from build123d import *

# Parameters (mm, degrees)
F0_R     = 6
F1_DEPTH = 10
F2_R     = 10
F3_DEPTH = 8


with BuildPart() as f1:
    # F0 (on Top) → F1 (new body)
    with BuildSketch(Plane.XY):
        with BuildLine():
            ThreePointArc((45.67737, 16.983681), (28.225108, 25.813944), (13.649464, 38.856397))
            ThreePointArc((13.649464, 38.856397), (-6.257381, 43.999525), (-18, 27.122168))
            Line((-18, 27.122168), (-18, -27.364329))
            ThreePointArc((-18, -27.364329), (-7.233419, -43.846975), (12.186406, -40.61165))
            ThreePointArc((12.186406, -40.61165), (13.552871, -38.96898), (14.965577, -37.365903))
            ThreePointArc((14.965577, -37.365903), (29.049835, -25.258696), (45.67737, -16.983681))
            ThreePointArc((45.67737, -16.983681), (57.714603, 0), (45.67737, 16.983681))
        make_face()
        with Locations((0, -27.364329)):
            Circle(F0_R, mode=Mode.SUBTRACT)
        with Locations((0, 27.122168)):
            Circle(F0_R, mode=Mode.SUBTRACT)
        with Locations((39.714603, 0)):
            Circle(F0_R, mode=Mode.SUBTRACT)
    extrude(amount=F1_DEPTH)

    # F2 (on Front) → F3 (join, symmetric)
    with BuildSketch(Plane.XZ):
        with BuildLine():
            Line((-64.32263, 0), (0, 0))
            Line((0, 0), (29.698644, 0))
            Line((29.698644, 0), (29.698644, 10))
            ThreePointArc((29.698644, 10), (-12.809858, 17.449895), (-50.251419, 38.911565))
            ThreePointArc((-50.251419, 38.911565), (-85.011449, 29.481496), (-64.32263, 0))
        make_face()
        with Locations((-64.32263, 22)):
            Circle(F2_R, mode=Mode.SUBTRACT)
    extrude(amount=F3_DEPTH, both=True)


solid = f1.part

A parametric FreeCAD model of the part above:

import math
import FreeCAD as App
import Part
import Sketcher

doc = App.newDocument("Part")
body = doc.addObject("PartDesign::Body", "Body")

# Sketch on XY plane
sketch1 = doc.addObject("Sketcher::SketchObject", "Sketch")
body.addObject(sketch1)
sketch1.AttachmentSupport = (doc.XY_Plane, [""])
sketch1.MapMode = "FlatFace"
sketch1.addGeometry(Part.ArcOfCircle(Part.Circle(App.Vector(70.522234, 87.749021, 0), App.Vector(0, 0, 1), 75.000004), math.radians(-139.31487), math.radians(-109.345563)), False)
sketch1.addGeometry(Part.ArcOfCircle(Part.Circle(App.Vector(0, 27.122168, 0), App.Vector(0, 0, 1), 18), math.radians(40.68513), math.radians(180)), False)
sketch1.addGeometry(Part.LineSegment(App.Vector(-18, 27.122168, 0), App.Vector(-18, -27.364329, 0)), False)
sketch1.addGeometry(Part.ArcOfCircle(Part.Circle(App.Vector(0.000001, -27.364328, 0), App.Vector(0, 0, 1), 18.000001), math.radians(-179.999996), math.radians(-47.388594)), False)
sketch1.addGeometry(Part.ArcOfCircle(Part.Circle(App.Vector(70.5213, -87.748199, 0), App.Vector(0, 0, 1), 74.99876), math.radians(137.795788), math.radians(141.060627)), False)
sketch1.addGeometry(Part.ArcOfCircle(Part.Circle(App.Vector(70.522241, -87.749034, 0), App.Vector(0, 0, 1), 75.000019), math.radians(109.345566), math.radians(137.795798)), False)
sketch1.addGeometry(Part.ArcOfCircle(Part.Circle(App.Vector(39.714603, 0, 0), App.Vector(0, 0, 1), 18), math.radians(-70.654435), math.radians(70.654435)), False)
sketch1.addGeometry(Part.Circle(App.Vector(0, -27.364329, 0), App.Vector(0, 0, 1), 6), False)
sketch1.addGeometry(Part.Circle(App.Vector(0, 27.122168, 0), App.Vector(0, 0, 1), 6), False)
sketch1.addGeometry(Part.Circle(App.Vector(39.714603, 0, 0), App.Vector(0, 0, 1), 6), False)
sketch1.addConstraint(Sketcher.Constraint("Coincident", 0, 1, 1, 1))
sketch1.addConstraint(Sketcher.Constraint("Coincident", 1, 2, 2, 1))
sketch1.addConstraint(Sketcher.Constraint("Coincident", 2, 2, 3, 1))
sketch1.addConstraint(Sketcher.Constraint("Coincident", 3, 2, 4, 2))
sketch1.addConstraint(Sketcher.Constraint("Coincident", 4, 1, 5, 2))
sketch1.addConstraint(Sketcher.Constraint("Coincident", 5, 1, 6, 1))
sketch1.addConstraint(Sketcher.Constraint("Coincident", 6, 2, 0, 2))
sketch1.addConstraint(Sketcher.Constraint("Vertical", 2))
sketch1.addConstraint(Sketcher.Constraint("Coincident", 7, 3, 3, 3))
sketch1.addConstraint(Sketcher.Constraint("Coincident", 8, 3, 1, 3))
sketch1.addConstraint(Sketcher.Constraint("Coincident", 9, 3, 6, 3))
sketch1.addConstraint(Sketcher.Constraint("PointOnObject", 1, 3, -2))
sketch1.addConstraint(Sketcher.Constraint("PointOnObject", 3, 3, -2))
sketch1.addConstraint(Sketcher.Constraint("PointOnObject", 6, 3, -1))
sketch1.addConstraint(Sketcher.Constraint("Diameter", 7, 12.0))
sketch1.addConstraint(Sketcher.Constraint("Diameter", 8, 12.0))
sketch1.addConstraint(Sketcher.Constraint("Diameter", 9, 12.0))
sketch1.addConstraint(Sketcher.Constraint("Radius", 1, 18.0))
sketch1.addConstraint(Sketcher.Constraint("Radius", 6, 18.0))
sketch1.addConstraint(Sketcher.Constraint("Radius", 4, 74.99876))
sketch1.addConstraint(Sketcher.Constraint("Radius", 5, 75.000019))
sketch1.addConstraint(Sketcher.Constraint("Radius", 0, 75.000004))
sketch1.addConstraint(Sketcher.Constraint("DistanceX", -1, 1, 4, 3, 70.5213))
sketch1.addConstraint(Sketcher.Constraint("DistanceY", 4, 3, -1, 1, 87.748199))
sketch1.addConstraint(Sketcher.Constraint("DistanceY", 5, 3, 1, 3, 114.871202))
sketch1.addConstraint(Sketcher.Constraint("DistanceX", 3, 3, 6, 3, 39.714602))
sketch1.addConstraint(Sketcher.Constraint("DistanceY", 2, 2, 2, 1, 54.486497))
sketch1.addConstraint(Sketcher.Constraint("DistanceY", 7, 3, -1, 1, 27.364329))
sketch1.addConstraint(Sketcher.Constraint("DistanceY", 2, 2, -1, 1, 27.364329))
sketch1.addConstraint(Sketcher.Constraint("DistanceX", -1, 1, 5, 1, 45.67737))
sketch1.addConstraint(Sketcher.Constraint("DistanceX", -1, 1, 6, 2, 45.67737))
sketch1.addConstraint(Sketcher.Constraint("DistanceY", 8, 3, 0, 1, 11.734229))
sketch1.addConstraint(Sketcher.Constraint("DistanceX", 3, 2, 4, 1, 2.779171))
pad1 = doc.addObject("PartDesign::Pad", "Pad")
body.addObject(pad1)
pad1.Profile = sketch1
pad1.Length = 10

# Sketch on XZ plane
sketch2 = doc.addObject("Sketcher::SketchObject", "Sketch001")
body.addObject(sketch2)
sketch2.AttachmentSupport = (doc.XZ_Plane, [""])
sketch2.MapMode = "FlatFace"
sketch2.addGeometry(Part.LineSegment(App.Vector(-64, 0, 0), App.Vector(30, 0, 0)), False)
sketch2.addGeometry(Part.LineSegment(App.Vector(30, 0, 0), App.Vector(30, 10, 0)), False)
sketch2.addGeometry(Part.ArcOfCircle(Part.Circle(App.Vector(30, 135, 0), App.Vector(0, 0, 1), 125), math.radians(-130), math.radians(-90)), False)
sketch2.addGeometry(Part.ArcOfCircle(Part.Circle(App.Vector(-64, 22, 0), App.Vector(0, 0, 1), 22), math.radians(50), math.radians(270)), False)
sketch2.addGeometry(Part.Circle(App.Vector(-64, 22, 0), App.Vector(0, 0, 1), 10), False)
sketch2.addConstraint(Sketcher.Constraint("Coincident", 0, 2, 1, 1))
sketch2.addConstraint(Sketcher.Constraint("Coincident", 1, 2, 2, 2))
sketch2.addConstraint(Sketcher.Constraint("Tangent", 2, 1, 3, 1))
sketch2.addConstraint(Sketcher.Constraint("Tangent", 3, 2, 0, 1))
sketch2.addConstraint(Sketcher.Constraint("Horizontal", 0))
sketch2.addConstraint(Sketcher.Constraint("Vertical", 1))
sketch2.addConstraint(Sketcher.Constraint("Coincident", 4, 3, 3, 3))
sketch2.addConstraint(Sketcher.Constraint("PointOnObject", 0, 2, -1))
sketch2.addConstraint(Sketcher.Constraint("Vertical", 2, 3, 0, 2))
sketch2.addConstraint(Sketcher.Constraint("Diameter", 4, 20.0))
sketch2.addConstraint(Sketcher.Constraint("Radius", 2, 125.000002))
sketch2.addConstraint(Sketcher.Constraint("Radius", 3, 22.0))
sketch2.addConstraint(Sketcher.Constraint("DistanceY", 1, 1, 1, 2, 10.0))
sketch2.addConstraint(Sketcher.Constraint("DistanceX", 3, 3, -1, 1, 64.32263))
pad2 = doc.addObject("PartDesign::Pad", "Pad001")
body.addObject(pad2)
pad2.Profile = sketch2
pad2.Length = 16
pad2.Midplane = True

doc.recompute()
